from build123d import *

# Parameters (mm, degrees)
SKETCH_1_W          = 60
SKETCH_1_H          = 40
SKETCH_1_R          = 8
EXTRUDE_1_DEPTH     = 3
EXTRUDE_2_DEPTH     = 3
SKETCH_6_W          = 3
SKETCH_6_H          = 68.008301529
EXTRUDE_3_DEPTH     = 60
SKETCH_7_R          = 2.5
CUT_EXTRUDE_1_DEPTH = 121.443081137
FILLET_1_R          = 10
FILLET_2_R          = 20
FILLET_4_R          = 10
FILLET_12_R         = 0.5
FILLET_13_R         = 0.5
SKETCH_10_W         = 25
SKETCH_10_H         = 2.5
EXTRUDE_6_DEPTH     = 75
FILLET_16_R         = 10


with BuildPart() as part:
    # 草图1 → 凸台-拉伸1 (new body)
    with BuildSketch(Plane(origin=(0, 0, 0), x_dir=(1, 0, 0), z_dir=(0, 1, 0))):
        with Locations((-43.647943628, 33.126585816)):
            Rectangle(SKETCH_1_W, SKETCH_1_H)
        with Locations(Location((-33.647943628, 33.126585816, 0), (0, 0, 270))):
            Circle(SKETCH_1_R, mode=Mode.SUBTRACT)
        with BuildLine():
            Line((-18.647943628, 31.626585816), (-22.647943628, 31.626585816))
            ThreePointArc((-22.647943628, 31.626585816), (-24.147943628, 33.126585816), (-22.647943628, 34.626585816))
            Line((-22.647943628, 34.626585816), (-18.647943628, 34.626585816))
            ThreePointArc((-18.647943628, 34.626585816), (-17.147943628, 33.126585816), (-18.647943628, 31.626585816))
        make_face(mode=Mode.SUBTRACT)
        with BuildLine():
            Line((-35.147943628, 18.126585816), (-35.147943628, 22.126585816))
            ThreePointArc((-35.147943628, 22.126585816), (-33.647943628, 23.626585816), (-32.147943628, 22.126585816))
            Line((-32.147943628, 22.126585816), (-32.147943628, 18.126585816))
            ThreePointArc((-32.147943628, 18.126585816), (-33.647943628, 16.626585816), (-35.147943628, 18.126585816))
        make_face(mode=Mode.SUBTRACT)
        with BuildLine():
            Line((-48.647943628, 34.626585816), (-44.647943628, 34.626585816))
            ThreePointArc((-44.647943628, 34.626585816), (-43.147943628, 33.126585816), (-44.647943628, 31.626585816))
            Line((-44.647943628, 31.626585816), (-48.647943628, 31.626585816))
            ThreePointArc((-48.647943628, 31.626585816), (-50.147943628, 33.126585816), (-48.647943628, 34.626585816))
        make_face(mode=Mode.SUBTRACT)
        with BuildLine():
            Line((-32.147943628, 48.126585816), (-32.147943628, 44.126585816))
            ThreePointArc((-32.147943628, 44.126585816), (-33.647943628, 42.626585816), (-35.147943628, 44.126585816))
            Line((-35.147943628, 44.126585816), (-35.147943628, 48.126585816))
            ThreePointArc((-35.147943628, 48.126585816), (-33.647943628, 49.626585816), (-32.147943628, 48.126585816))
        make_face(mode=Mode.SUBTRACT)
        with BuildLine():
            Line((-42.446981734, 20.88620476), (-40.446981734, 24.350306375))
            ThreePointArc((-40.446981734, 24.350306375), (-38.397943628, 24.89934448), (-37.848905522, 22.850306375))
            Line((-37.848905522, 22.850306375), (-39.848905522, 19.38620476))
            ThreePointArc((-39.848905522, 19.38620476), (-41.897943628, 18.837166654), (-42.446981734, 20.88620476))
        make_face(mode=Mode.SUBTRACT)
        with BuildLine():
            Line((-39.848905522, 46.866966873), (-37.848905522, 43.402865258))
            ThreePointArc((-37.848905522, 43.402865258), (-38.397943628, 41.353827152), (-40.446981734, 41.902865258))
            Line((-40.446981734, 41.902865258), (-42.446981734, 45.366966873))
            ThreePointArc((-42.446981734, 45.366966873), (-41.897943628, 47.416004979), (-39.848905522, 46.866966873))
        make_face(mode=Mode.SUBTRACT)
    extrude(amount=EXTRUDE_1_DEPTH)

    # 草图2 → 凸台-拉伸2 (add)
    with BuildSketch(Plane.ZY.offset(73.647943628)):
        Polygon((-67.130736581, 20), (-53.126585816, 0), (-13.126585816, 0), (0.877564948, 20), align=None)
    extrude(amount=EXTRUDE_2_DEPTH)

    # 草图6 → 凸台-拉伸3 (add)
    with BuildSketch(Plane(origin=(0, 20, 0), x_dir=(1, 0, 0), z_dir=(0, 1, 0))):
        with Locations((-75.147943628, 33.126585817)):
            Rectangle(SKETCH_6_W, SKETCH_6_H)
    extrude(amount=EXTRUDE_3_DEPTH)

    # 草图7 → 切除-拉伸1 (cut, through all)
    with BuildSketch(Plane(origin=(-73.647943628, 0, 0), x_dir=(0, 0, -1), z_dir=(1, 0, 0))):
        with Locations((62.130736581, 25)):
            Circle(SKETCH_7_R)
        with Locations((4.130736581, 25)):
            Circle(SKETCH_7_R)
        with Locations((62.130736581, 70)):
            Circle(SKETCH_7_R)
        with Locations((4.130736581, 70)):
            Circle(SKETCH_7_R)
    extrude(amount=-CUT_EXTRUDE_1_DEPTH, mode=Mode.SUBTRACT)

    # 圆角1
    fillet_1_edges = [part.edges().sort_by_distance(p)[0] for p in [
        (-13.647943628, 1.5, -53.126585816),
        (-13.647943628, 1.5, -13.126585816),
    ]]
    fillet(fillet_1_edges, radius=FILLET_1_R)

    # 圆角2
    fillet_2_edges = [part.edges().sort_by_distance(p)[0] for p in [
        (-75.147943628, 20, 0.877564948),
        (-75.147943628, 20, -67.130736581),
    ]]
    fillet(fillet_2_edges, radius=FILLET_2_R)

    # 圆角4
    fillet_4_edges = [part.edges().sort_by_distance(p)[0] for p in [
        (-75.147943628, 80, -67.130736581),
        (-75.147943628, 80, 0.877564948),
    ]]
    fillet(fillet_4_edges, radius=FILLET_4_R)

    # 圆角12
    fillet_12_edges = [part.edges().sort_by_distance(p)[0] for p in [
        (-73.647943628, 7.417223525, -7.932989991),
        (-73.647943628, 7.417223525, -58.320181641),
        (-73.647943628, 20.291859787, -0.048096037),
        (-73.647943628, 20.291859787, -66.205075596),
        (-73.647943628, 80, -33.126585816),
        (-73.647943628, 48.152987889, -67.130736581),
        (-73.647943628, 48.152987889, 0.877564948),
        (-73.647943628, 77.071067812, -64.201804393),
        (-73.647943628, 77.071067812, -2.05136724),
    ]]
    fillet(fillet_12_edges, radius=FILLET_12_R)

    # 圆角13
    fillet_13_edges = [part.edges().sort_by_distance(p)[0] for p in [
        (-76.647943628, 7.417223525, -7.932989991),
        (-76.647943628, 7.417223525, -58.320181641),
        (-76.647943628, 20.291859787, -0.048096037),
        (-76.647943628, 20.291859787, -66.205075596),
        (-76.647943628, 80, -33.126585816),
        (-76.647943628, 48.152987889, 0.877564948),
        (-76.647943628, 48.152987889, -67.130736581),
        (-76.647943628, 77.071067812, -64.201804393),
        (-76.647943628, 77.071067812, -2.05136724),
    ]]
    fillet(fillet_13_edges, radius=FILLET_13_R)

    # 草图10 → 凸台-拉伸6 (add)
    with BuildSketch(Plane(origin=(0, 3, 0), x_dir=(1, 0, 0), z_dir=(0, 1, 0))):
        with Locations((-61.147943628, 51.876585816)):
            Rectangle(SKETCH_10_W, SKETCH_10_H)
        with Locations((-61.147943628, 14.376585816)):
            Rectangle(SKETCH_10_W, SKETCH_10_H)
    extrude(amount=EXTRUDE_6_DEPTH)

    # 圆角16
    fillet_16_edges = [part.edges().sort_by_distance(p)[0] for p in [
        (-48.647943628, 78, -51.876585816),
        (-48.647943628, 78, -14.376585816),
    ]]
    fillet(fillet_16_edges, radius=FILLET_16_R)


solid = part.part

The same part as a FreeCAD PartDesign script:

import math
import FreeCAD as App
import Part
import Sketcher
Q = App.Units.Quantity


def edges_at(feature, points):
    """Names of the edges that pass closest to the given points."""
    edges = feature.Shape.Edges
    near = lambda p: min(range(len(edges)), key=lambda i: edges[i].distToShape(Part.Vertex(*p))[0])
    return sorted({f"Edge{near(p) + 1}" for p in points})

doc = App.newDocument("Part")
body = doc.addObject("PartDesign::Body", "Body")

sketch1 = doc.addObject("Sketcher::SketchObject", "Sketch")
body.addObject(sketch1)
sketch1.AttachmentSupport = (doc.XZ_Plane, [""])
sketch1.MapMode = "FlatFace"
sketch1.addGeometry(Part.LineSegment(App.Vector(-73.6, -53.1, 0), App.Vector(-73.6, -13.1, 0)), False)
sketch1.addGeometry(Part.LineSegment(App.Vector(-73.6, -13.1, 0), App.Vector(-13.6, -13.1, 0)), False)
sketch1.addGeometry(Part.LineSegment(App.Vector(-13.6, -13.1, 0), App.Vector(-13.6, -53.1, 0)), False)
sketch1.addGeometry(Part.LineSegment(App.Vector(-13.6, -53.1, 0), App.Vector(-73.6, -53.1, 0)), False)
sketch1.addGeometry(Part.ArcOfCircle(Part.Circle(App.Vector(-41.1, -20.1, 0), App.Vector(0, 0, 1), 1.5), math.radians(30), math.radians(210)), False)
sketch1.addGeometry(Part.LineSegment(App.Vector(-42.4, -20.9, 0), App.Vector(-40.4, -24.4, 0)), False)
sketch1.addGeometry(Part.ArcOfCircle(Part.Circle(App.Vector(-39.1, -23.6, 0), App.Vector(0, 0, 1), 1.5), math.radians(-150), math.radians(30)), False)
sketch1.addGeometry(Part.LineSegment(App.Vector(-37.8, -22.9, 0), App.Vector(-39.8, -19.4, 0)), False)
sketch1.addGeometry(Part.ArcOfCircle(Part.Circle(App.Vector(-33.6, -18.1, 0), App.Vector(0, 0, 1), 1.5), math.radians(0), math.radians(180)), False)
sketch1.addGeometry(Part.LineSegment(App.Vector(-35.1, -18.1, 0), App.Vector(-35.1, -22.1, 0)), False)
sketch1.addGeometry(Part.ArcOfCircle(Part.Circle(App.Vector(-33.6, -22.1, 0), App.Vector(0, 0, 1), 1.5), math.radians(180), math.radians(360)), False)
sketch1.addGeometry(Part.LineSegment(App.Vector(-32.1, -22.1, 0), App.Vector(-32.1, -18.1, 0)), False)
sketch1.addGeometry(Part.ArcOfCircle(Part.Circle(App.Vector(-48.6, -33.1, 0), App.Vector(0, 0, 1), 1.5), math.radians(90), math.radians(270)), False)
sketch1.addGeometry(Part.LineSegment(App.Vector(-48.6, -34.6, 0), App.Vector(-44.6, -34.6, 0)), False)
sketch1.addGeometry(Part.ArcOfCircle(Part.Circle(App.Vector(-44.6, -33.1, 0), App.Vector(0, 0, 1), 1.5), math.radians(-90), math.radians(90)), False)
sketch1.addGeometry(Part.LineSegment(App.Vector(-44.6, -31.6, 0), App.Vector(-48.6, -31.6, 0)), False)
sketch1.addGeometry(Part.ArcOfCircle(Part.Circle(App.Vector(-41.1, -46.1, 0), App.Vector(0, 0, 1), 1.5), math.radians(150), math.radians(330)), False)
sketch1.addGeometry(Part.LineSegment(App.Vector(-39.8, -46.9, 0), App.Vector(-37.8, -43.4, 0)), False)
sketch1.addGeometry(Part.ArcOfCircle(Part.Circle(App.Vector(-39.1, -42.7, 0), App.Vector(0, 0, 1), 1.5), math.radians(-30), math.radians(150)), False)
sketch1.addGeometry(Part.LineSegment(App.Vector(-40.4, -41.9, 0), App.Vector(-42.4, -45.4, 0)), False)
sketch1.addGeometry(Part.Circle(App.Vector(-33.6, -33.1, 0), App.Vector(0, 0, 1), 8), False)
sketch1.addGeometry(Part.ArcOfCircle(Part.Circle(App.Vector(-18.6, -33.1, 0), App.Vector(0, 0, 1), 1.5), math.radians(-90), math.radians(90)), False)
sketch1.addGeometry(Part.LineSegment(App.Vector(-18.6, -31.6, 0), App.Vector(-22.6, -31.6, 0)), False)
sketch1.addGeometry(Part.ArcOfCircle(Part.Circle(App.Vector(-22.6, -33.1, 0), App.Vector(0, 0, 1), 1.5), math.radians(90), math.radians(270)), False)
sketch1.addGeometry(Part.LineSegment(App.Vector(-22.6, -34.6, 0), App.Vector(-18.6, -34.6, 0)), False)
sketch1.addGeometry(Part.ArcOfCircle(Part.Circle(App.Vector(-33.6, -48.1, 0), App.Vector(0, 0, 1), 1.5), math.radians(180), math.radians(360)), False)
sketch1.addGeometry(Part.LineSegment(App.Vector(-32.1, -48.1, 0), App.Vector(-32.1, -44.1, 0)), False)
sketch1.addGeometry(Part.ArcOfCircle(Part.Circle(App.Vector(-33.6, -44.1, 0), App.Vector(0, 0, 1), 1.5), math.radians(0), math.radians(180)), False)
sketch1.addGeometry(Part.LineSegment(App.Vector(-35.1, -44.1, 0), App.Vector(-35.1, -48.1, 0)), False)
sketch1.addConstraint(Sketcher.Constraint("Coincident", 0, 2, 1, 1))
sketch1.addConstraint(Sketcher.Constraint("Coincident", 1, 2, 2, 1))
sketch1.addConstraint(Sketcher.Constraint("Coincident", 2, 2, 3, 1))
sketch1.addConstraint(Sketcher.Constraint("Coincident", 3, 2, 0, 1))
sketch1.addConstraint(Sketcher.Constraint("Tangent", 4, 2, 5, 1))
sketch1.addConstraint(Sketcher.Constraint("Tangent", 5, 2, 6, 1))
sketch1.addConstraint(Sketcher.Constraint("Tangent", 6, 2, 7, 1))
sketch1.addConstraint(Sketcher.Constraint("Tangent", 7, 2, 4, 1))
sketch1.addConstraint(Sketcher.Constraint("Tangent", 8, 2, 9, 1))
sketch1.addConstraint(Sketcher.Constraint("Tangent", 9, 2, 10, 1))
sketch1.addConstraint(Sketcher.Constraint("Tangent", 10, 2, 11, 1))
sketch1.addConstraint(Sketcher.Constraint("Tangent", 11, 2, 8, 1))
sketch1.addConstraint(Sketcher.Constraint("Tangent", 12, 2, 13, 1))
sketch1.addConstraint(Sketcher.Constraint("Tangent", 13, 2, 14, 1))
sketch1.addConstraint(Sketcher.Constraint("Tangent", 14, 2, 15, 1))
sketch1.addConstraint(Sketcher.Constraint("Tangent", 15, 2, 12, 1))
sketch1.addConstraint(Sketcher.Constraint("Tangent", 16, 2, 17, 1))
sketch1.addConstraint(Sketcher.Constraint("Tangent", 17, 2, 18, 1))
sketch1.addConstraint(Sketcher.Constraint("Tangent", 18, 2, 19, 1))
sketch1.addConstraint(Sketcher.Constraint("Tangent", 19, 2, 16, 1))
sketch1.addConstraint(Sketcher.Constraint("Tangent", 21, 2, 22, 1))
sketch1.addConstraint(Sketcher.Constraint("Tangent", 22, 2, 23, 1))
sketch1.addConstraint(Sketcher.Constraint("Tangent", 23, 2, 24, 1))
sketch1.addConstraint(Sketcher.Constraint("Tangent", 24, 2, 21, 1))
sketch1.addConstraint(Sketcher.Constraint("Tangent", 25, 2, 26, 1))
sketch1.addConstraint(Sketcher.Constraint("Tangent", 26, 2, 27, 1))
sketch1.addConstraint(Sketcher.Constraint("Tangent", 27, 2, 28, 1))
sketch1.addConstraint(Sketcher.Constraint("Tangent", 28, 2, 25, 1))
sketch1.addConstraint(Sketcher.Constraint("Vertical", 0))
sketch1.addConstraint(Sketcher.Constraint("Horizontal", 1))
sketch1.addConstraint(Sketcher.Constraint("Vertical", 2))
sketch1.addConstraint(Sketcher.Constraint("Horizontal", 3))
sketch1.addConstraint(Sketcher.Constraint("Vertical", 9))
sketch1.addConstraint(Sketcher.Constraint("Vertical", 11))
sketch1.addConstraint(Sketcher.Constraint("Horizontal", 13))
sketch1.addConstraint(Sketcher.Constraint("Horizontal", 15))
sketch1.addConstraint(Sketcher.Constraint("Horizontal", 22))
sketch1.addConstraint(Sketcher.Constraint("Horizontal", 24))
sketch1.addConstraint(Sketcher.Constraint("Vertical", 26))
sketch1.addConstraint(Sketcher.Constraint("Vertical", 28))
sketch1.addConstraint(Sketcher.Constraint("Equal", 4, 6))
sketch1.addConstraint(Sketcher.Constraint("Equal", 6, 8))
sketch1.addConstraint(Sketcher.Constraint("Equal", 10, 12))
sketch1.addConstraint(Sketcher.Constraint("Equal", 14, 16))
sketch1.addConstraint(Sketcher.Constraint("Equal", 16, 18))
sketch1.addConstraint(Sketcher.Constraint("Equal", 18, 21))
sketch1.addConstraint(Sketcher.Constraint("Equal", 23, 25))
sketch1.addConstraint(Sketcher.Constraint("Horizontal", 14, 3, 20, 3))
sketch1.addConstraint(Sketcher.Constraint("Horizontal", 20, 3, 21, 3))
sketch1.addConstraint(Sketcher.Constraint("Vertical", 4, 3, 16, 3))
sketch1.addConstraint(Sketcher.Constraint("Vertical", 6, 3, 18, 3))
sketch1.addConstraint(Sketcher.Constraint("Vertical", 10, 3, 20, 3))
sketch1.addConstraint(Sketcher.Constraint("Vertical", 20, 3, 25, 3))
sketch1.addConstraint(Sketcher.Constraint("Vertical", 7, 2, 16, 2))
sketch1.addConstraint(Sketcher.Constraint("Equal", 15, 22))
sketch1.addConstraint(Sketcher.Constraint("Equal", 24, 9))
sketch1.addConstraint(Sketcher.Constraint("Equal", 11, 26))
sketch1.addConstraint(Sketcher.Constraint("Diameter", 20, 16.0))
sketch1.addConstraint(Sketcher.Constraint("Radius", 4, 1.5))
sketch1.addConstraint(Sketcher.Constraint("DistanceX", 1, 1, 1, 2, 60.0))
sketch1.addConstraint(Sketcher.Constraint("DistanceX", 13, 1, 13, 2, 4.0))
sketch1.addConstraint(Sketcher.Constraint("DistanceY", 0, 1, 0, 2, 40.0))
sketch1.addConstraint(Sketcher.Constraint("Angle", 5, Q("-60 deg")))
sketch1.addConstraint(Sketcher.Constraint("Distance", 5, 4.0))
sketch1.addConstraint(Sketcher.Constraint("DistanceX", 12, 3, 10, 3, 15.0))
sketch1.addConstraint(Sketcher.Constraint("DistanceY", 12, 3, 10, 3, 11.0))
sketch1.addConstraint(Sketcher.Constraint("DistanceX", 20, 3, 21, 3, 15.0))
sketch1.addConstraint(Sketcher.Constraint("DistanceY", 25, 3, 20, 3, 15.0))
sketch1.addConstraint(Sketcher.Constraint("DistanceX", 0, 2, 12, 3, 25.0))
sketch1.addConstraint(Sketcher.Constraint("DistanceY", 12, 3, 0, 2, 20.0))
sketch1.addConstraint(Sketcher.Constraint("DistanceX", 4, 3, 8, 2, 6.0))
sketch1.addConstraint(Sketcher.Constraint("DistanceX", 4, 2, -1, 1, 42.446982))
sketch1.addConstraint(Sketcher.Constraint("DistanceY", 6, 3, 8, 3, 5.473721))
sketch1.addConstraint(Sketcher.Constraint("DistanceY", 16, 3, 14, 3, 12.990381))
sketch1.addConstraint(Sketcher.Constraint("DistanceY", 4, 3, -1, 1, 20.136205))
pad1 = doc.addObject("PartDesign::Pad", "Pad")
body.addObject(pad1)
pad1.Profile = sketch1
pad1.Length = 3
pad1.Reversed = True

sketch2 = doc.addObject("Sketcher::SketchObject", "Sketch001")
body.addObject(sketch2)
sketch2.AttachmentSupport = (doc.YZ_Plane, [""])
sketch2.MapMode = "FlatFace"
sketch2.AttachmentOffset = App.Placement(App.Vector(0, 0, -73.647944), App.Rotation())
sketch2.addGeometry(Part.LineSegment(App.Vector(20, -67, 0), App.Vector(0, -53, 0)), False)
sketch2.addGeometry(Part.LineSegment(App.Vector(0, -53, 0), App.Vector(0, -13, 0)), False)
sketch2.addGeometry(Part.LineSegment(App.Vector(0, -13, 0), App.Vector(20, 1, 0)), False)
sketch2.addGeometry(Part.LineSegment(App.Vector(20, 1, 0), App.Vector(20, -67, 0)), False)
sketch2.addConstraint(Sketcher.Constraint("Coincident", 0, 2, 1, 1))
sketch2.addConstraint(Sketcher.Constraint("Coincident", 1, 2, 2, 1))
sketch2.addConstraint(Sketcher.Constraint("Coincident", 2, 2, 3, 1))
sketch2.addConstraint(Sketcher.Constraint("Coincident", 3, 2, 0, 1))
sketch2.addConstraint(Sketcher.Constraint("Vertical", 1))
sketch2.addConstraint(Sketcher.Constraint("Vertical", 3))
sketch2.addConstraint(Sketcher.Constraint("PointOnObject", 0, 2, -2))
sketch2.addConstraint(Sketcher.Constraint("Equal", 0, 2))
sketch2.addConstraint(Sketcher.Constraint("DistanceY", 1, 1, 1, 2, 40.0))
sketch2.addConstraint(Sketcher.Constraint("Angle", 0, Q("145 deg")))
sketch2.addConstraint(Sketcher.Constraint("DistanceX", -1, 1, 2, 2, 20.0))
sketch2.addConstraint(Sketcher.Constraint("DistanceY", 0, 2, -1, 1, 53.126586))
pad2 = doc.addObject("PartDesign::Pad", "Pad001")
body.addObject(pad2)
pad2.Profile = sketch2
pad2.Length = 3
pad2.Reversed = True

sketch3 = doc.addObject("Sketcher::SketchObject", "Sketch002")
body.addObject(sketch3)
sketch3.AttachmentSupport = (doc.XZ_Plane, [""])
sketch3.MapMode = "FlatFace"
sketch3.AttachmentOffset = App.Placement(App.Vector(0, 0, -20), App.Rotation())
sketch3.addGeometry(Part.LineSegment(App.Vector(-76.6, -67.1, 0), App.Vector(-76.6, 0.9, 0)), False)
sketch3.addGeometry(Part.LineSegment(App.Vector(-76.6, 0.9, 0), App.Vector(-73.6, 0.9, 0)), False)
sketch3.addGeometry(Part.LineSegment(App.Vector(-73.6, 0.9, 0), App.Vector(-73.6, -67.1, 0)), False)
sketch3.addGeometry(Part.LineSegment(App.Vector(-73.6, -67.1, 0), App.Vector(-76.6, -67.1, 0)), False)
sketch3.addConstraint(Sketcher.Constraint("Coincident", 0, 2, 1, 1))
sketch3.addConstraint(Sketcher.Constraint("Coincident", 1, 2, 2, 1))
sketch3.addConstraint(Sketcher.Constraint("Coincident", 2, 2, 3, 1))
sketch3.addConstraint(Sketcher.Constraint("Coincident", 3, 2, 0, 1))
sketch3.addConstraint(Sketcher.Constraint("Vertical", 0))
sketch3.addConstraint(Sketcher.Constraint("Horizontal", 1))
sketch3.addConstraint(Sketcher.Constraint("Vertical", 2))
sketch3.addConstraint(Sketcher.Constraint("Horizontal", 3))
sketch3.addConstraint(Sketcher.Constraint("DistanceX", 1, 1, 1, 2, 3.0))
sketch3.addConstraint(Sketcher.Constraint("DistanceY", 0, 1, 0, 2, 68.008302))
sketch3.addConstraint(Sketcher.Constraint("DistanceX", 0, 2, -1, 1, 76.647944))
sketch3.addConstraint(Sketcher.Constraint("DistanceY", -1, 1, 0, 2, 0.877565))
pad3 = doc.addObject("PartDesign::Pad", "Pad002")
body.addObject(pad3)
pad3.Profile = sketch3
pad3.Length = 60
pad3.Reversed = True

sketch4 = doc.addObject("Sketcher::SketchObject", "Sketch003")
body.addObject(sketch4)
sketch4.AttachmentSupport = (doc.YZ_Plane, [""])
sketch4.MapMode = "FlatFace"
sketch4.AttachmentOffset = App.Placement(App.Vector(0, 0, -73.647944), App.Rotation())
sketch4.addGeometry(Part.Circle(App.Vector(25, -62.1, 0), App.Vector(0, 0, 1), 2.5), False)
sketch4.addGeometry(Part.Circle(App.Vector(25, -4.1, 0), App.Vector(0, 0, 1), 2.5), False)
sketch4.addGeometry(Part.Circle(App.Vector(70, -62.1, 0), App.Vector(0, 0, 1), 2.5), False)
sketch4.addGeometry(Part.Circle(App.Vector(70, -4.1, 0), App.Vector(0, 0, 1), 2.5), False)
sketch4.addConstraint(Sketcher.Constraint("Equal", 0, 1))
sketch4.addConstraint(Sketcher.Constraint("Equal", 1, 2))
sketch4.addConstraint(Sketcher.Constraint("Equal", 2, 3))
sketch4.addConstraint(Sketcher.Constraint("Horizontal", 0, 3, 2, 3))
sketch4.addConstraint(Sketcher.Constraint("Horizontal", 1, 3, 3, 3))
sketch4.addConstraint(Sketcher.Constraint("Vertical", 0, 3, 1, 3))
sketch4.addConstraint(Sketcher.Constraint("Vertical", 2, 3, 3, 3))
sketch4.addConstraint(Sketcher.Constraint("Diameter", 0, 5.0))
sketch4.addConstraint(Sketcher.Constraint("DistanceX", -1, 1, 0, 3, 25.0))
sketch4.addConstraint(Sketcher.Constraint("DistanceX", -1, 1, 2, 3, 70.0))
sketch4.addConstraint(Sketcher.Constraint("DistanceY", 0, 3, 1, 3, 58.0))
sketch4.addConstraint(Sketcher.Constraint("DistanceY", 0, 3, -1, 1, 62.130737))
pocket1 = doc.addObject("PartDesign::Pocket", "Pocket")
body.addObject(pocket1)
pocket1.Profile = sketch4
pocket1.Type = "ThroughAll"
doc.recompute()

fillet = doc.addObject("PartDesign::Fillet", "Fillet")
body.addObject(fillet)
fillet.Base = (pocket1, edges_at(pocket1, [(-13.648, 1.5, -53.127), (-13.648, 1.5, -13.127)]))
fillet.Radius = 10
doc.recompute()

fillet2 = doc.addObject("PartDesign::Fillet", "Fillet001")
body.addObject(fillet2)
fillet2.Base = (fillet, edges_at(fillet, [(-75.148, 20, 0.878), (-75.148, 20, -67.131)]))
fillet2.Radius = 20
doc.recompute()

fillet3 = doc.addObject("PartDesign::Fillet", "Fillet002")
body.addObject(fillet3)
fillet3.Base = (fillet2, edges_at(fillet2, [(-75.148, 80, -67.131), (-75.148, 80, 0.878)]))
fillet3.Radius = 10
doc.recompute()

fillet4 = doc.addObject("PartDesign::Fillet", "Fillet003")
body.addObject(fillet4)
fillet4.Base = (fillet3, edges_at(fillet3, [
    (-73.648, 7.417, -7.933),
    (-73.648, 7.417, -58.32),
    (-73.648, 20.292, -0.048),
    (-73.648, 20.292, -66.205),
    (-73.648, 80, -33.127),
    (-73.648, 48.153, -67.131),
    (-73.648, 48.153, 0.878),
    (-73.648, 77.071, -64.202),
    (-73.648, 77.071, -2.051),
]))
fillet4.Radius = 0.5
doc.recompute()

fillet5 = doc.addObject("PartDesign::Fillet", "Fillet004")
body.addObject(fillet5)
fillet5.Base = (fillet4, edges_at(fillet4, [
    (-76.648, 7.417, -7.933),
    (-76.648, 7.417, -58.32),
    (-76.648, 20.292, -0.048),
    (-76.648, 20.292, -66.205),
    (-76.648, 80, -33.127),
    (-76.648, 48.153, 0.878),
    (-76.648, 48.153, -67.131),
    (-76.648, 77.071, -64.202),
    (-76.648, 77.071, -2.051),
]))
fillet5.Radius = 0.5

sketch5 = doc.addObject("Sketcher::SketchObject", "Sketch004")
body.addObject(sketch5)
sketch5.AttachmentSupport = (doc.XZ_Plane, [""])
sketch5.MapMode = "FlatFace"
sketch5.AttachmentOffset = App.Placement(App.Vector(0, 0, -3), App.Rotation())
sketch5.addGeometry(Part.LineSegment(App.Vector(-73.6, -53.1, 0), App.Vector(-73.6, -50.6, 0)), False)
sketch5.addGeometry(Part.LineSegment(App.Vector(-73.6, -50.6, 0), App.Vector(-48.6, -50.6, 0)), False)
sketch5.addGeometry(Part.LineSegment(App.Vector(-48.6, -50.6, 0), App.Vector(-48.6, -53.1, 0)), False)
sketch5.addGeometry(Part.LineSegment(App.Vector(-48.6, -53.1, 0), App.Vector(-73.6, -53.1, 0)), False)
sketch5.addGeometry(Part.LineSegment(App.Vector(-73.6, -15.6, 0), App.Vector(-73.6, -13.1, 0)), False)
sketch5.addGeometry(Part.LineSegment(App.Vector(-73.6, -13.1, 0), App.Vector(-48.6, -13.1, 0)), False)
sketch5.addGeometry(Part.LineSegment(App.Vector(-48.6, -13.1, 0), App.Vector(-48.6, -15.6, 0)), False)
sketch5.addGeometry(Part.LineSegment(App.Vector(-48.6, -15.6, 0), App.Vector(-73.6, -15.6, 0)), False)
sketch5.addConstraint(Sketcher.Constraint("Coincident", 0, 2, 1, 1))
sketch5.addConstraint(Sketcher.Constraint("Coincident", 1, 2, 2, 1))
sketch5.addConstraint(Sketcher.Constraint("Coincident", 2, 2, 3, 1))
sketch5.addConstraint(Sketcher.Constraint("Coincident", 3, 2, 0, 1))
sketch5.addConstraint(Sketcher.Constraint("Coincident", 4, 2, 5, 1))
sketch5.addConstraint(Sketcher.Constraint("Coincident", 5, 2, 6, 1))
sketch5.addConstraint(Sketcher.Constraint("Coincident", 6, 2, 7, 1))
sketch5.addConstraint(Sketcher.Constraint("Coincident", 7, 2, 4, 1))
sketch5.addConstraint(Sketcher.Constraint("Vertical", 0))
sketch5.addConstraint(Sketcher.Constraint("Horizontal", 1))
sketch5.addConstraint(Sketcher.Constraint("Vertical", 2))
sketch5.addConstraint(Sketcher.Constraint("Horizontal", 3))
sketch5.addConstraint(Sketcher.Constraint("Vertical", 4))
sketch5.addConstraint(Sketcher.Constraint("Horizontal", 5))
sketch5.addConstraint(Sketcher.Constraint("Vertical", 6))
sketch5.addConstraint(Sketcher.Constraint("Horizontal", 7))
sketch5.addConstraint(Sketcher.Constraint("Vertical", 3, 2, 4, 2))
sketch5.addConstraint(Sketcher.Constraint("Vertical", 2, 2, 5, 2))
sketch5.addConstraint(Sketcher.Constraint("Equal", 2, 4))
sketch5.addConstraint(Sketcher.Constraint("DistanceX", 1, 1, 1, 2, 25.0))
sketch5.addConstraint(Sketcher.Constraint("DistanceY", 0, 1, 0, 2, 2.5))
sketch5.addConstraint(Sketcher.Constraint("DistanceY", 3, 2, 4, 2, 40.0))
sketch5.addConstraint(Sketcher.Constraint("DistanceX", 0, 2, -1, 1, 73.647944))
sketch5.addConstraint(Sketcher.Constraint("DistanceY", 0, 2, -1, 1, 50.626586))
pad4 = doc.addObject("PartDesign::Pad", "Pad003")
body.addObject(pad4)
pad4.Profile = sketch5
pad4.Length = 75
pad4.Reversed = True
doc.recompute()

fillet6 = doc.addObject("PartDesign::Fillet", "Fillet005")
body.addObject(fillet6)
fillet6.Base = (pad4, edges_at(pad4, [(-48.648, 78, -51.877), (-48.648, 78, -14.377)]))
fillet6.Radius = 10

doc.recompute()
